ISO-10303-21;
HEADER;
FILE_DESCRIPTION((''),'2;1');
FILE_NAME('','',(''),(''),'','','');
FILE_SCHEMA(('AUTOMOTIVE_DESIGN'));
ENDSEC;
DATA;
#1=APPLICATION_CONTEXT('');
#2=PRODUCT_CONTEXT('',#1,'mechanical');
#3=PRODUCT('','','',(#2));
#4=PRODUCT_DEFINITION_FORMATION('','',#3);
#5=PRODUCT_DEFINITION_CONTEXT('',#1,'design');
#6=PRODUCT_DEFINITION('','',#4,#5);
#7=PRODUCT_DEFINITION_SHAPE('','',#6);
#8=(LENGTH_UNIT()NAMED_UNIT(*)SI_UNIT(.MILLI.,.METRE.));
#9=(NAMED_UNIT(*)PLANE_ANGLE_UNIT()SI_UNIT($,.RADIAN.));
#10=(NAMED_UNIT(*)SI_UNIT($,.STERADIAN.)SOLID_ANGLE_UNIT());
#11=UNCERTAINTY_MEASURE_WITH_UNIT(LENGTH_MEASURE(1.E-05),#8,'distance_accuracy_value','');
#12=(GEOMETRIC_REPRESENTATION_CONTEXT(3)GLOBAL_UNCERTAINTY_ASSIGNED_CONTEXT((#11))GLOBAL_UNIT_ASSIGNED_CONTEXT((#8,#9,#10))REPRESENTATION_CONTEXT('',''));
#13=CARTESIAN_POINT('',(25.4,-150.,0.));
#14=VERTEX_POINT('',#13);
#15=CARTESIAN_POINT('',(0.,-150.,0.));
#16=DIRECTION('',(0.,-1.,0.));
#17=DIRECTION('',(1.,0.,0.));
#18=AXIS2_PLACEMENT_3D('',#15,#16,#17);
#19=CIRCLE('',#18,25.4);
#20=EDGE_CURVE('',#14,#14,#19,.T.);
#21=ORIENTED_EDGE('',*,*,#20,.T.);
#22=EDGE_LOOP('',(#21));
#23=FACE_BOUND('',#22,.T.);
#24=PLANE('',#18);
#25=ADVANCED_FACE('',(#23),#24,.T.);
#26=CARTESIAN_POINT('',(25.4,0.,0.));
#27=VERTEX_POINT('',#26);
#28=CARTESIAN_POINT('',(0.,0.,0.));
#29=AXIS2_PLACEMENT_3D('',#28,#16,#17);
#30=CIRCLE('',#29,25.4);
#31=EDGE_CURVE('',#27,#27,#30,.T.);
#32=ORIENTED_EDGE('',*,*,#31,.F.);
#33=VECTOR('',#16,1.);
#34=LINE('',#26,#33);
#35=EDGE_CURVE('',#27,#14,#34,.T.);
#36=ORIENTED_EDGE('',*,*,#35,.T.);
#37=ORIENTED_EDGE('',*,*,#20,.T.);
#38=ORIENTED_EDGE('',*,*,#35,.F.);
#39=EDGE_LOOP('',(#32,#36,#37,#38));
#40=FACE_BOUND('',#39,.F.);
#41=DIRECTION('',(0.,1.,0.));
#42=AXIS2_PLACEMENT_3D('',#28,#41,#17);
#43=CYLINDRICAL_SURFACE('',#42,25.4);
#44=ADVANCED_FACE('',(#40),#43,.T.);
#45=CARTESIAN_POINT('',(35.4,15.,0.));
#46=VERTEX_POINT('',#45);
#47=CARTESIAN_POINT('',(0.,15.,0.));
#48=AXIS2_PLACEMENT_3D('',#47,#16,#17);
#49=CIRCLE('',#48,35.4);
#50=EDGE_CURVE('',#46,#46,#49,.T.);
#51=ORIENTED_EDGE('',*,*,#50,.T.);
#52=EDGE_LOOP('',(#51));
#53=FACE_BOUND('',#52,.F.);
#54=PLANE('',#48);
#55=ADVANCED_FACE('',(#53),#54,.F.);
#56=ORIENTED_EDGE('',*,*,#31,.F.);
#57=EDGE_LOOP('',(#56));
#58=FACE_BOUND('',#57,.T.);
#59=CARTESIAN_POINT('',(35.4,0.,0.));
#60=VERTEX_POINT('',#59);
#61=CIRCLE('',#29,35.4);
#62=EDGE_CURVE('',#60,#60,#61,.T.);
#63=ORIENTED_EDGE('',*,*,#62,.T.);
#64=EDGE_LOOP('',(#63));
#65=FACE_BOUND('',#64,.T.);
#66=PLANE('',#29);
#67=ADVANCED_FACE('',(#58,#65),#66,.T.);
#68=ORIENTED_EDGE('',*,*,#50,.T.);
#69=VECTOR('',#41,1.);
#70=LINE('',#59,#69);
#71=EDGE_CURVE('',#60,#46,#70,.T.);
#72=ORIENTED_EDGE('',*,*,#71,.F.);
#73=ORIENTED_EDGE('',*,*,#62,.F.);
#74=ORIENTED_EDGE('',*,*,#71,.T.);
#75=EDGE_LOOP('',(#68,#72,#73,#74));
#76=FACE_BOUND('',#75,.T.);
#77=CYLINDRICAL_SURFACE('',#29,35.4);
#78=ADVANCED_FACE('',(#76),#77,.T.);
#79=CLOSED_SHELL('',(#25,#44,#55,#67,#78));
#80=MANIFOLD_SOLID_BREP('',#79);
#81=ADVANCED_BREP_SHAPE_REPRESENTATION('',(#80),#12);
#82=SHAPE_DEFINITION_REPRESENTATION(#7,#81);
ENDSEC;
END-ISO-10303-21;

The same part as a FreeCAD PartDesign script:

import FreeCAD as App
import Part
import Sketcher
Q = App.Units.Quantity

doc = App.newDocument("Part")
body = doc.addObject("PartDesign::Body", "Body")

# Sketch on XZ plane
sketch1 = body.newObject("Sketcher::SketchObject", "Sketch")
sketch1.AttachmentSupport = (doc.getObject("XZ_Plane"), [""])
sketch1.MapMode = "FlatFace"
sketch1.addGeometry(Part.Circle(App.Vector(0, 0, 0), App.Vector(0, 0, 1), 25), False)
sketch1.addConstraint(Sketcher.Constraint("Coincident", 0, 3, -1, 1))
sketch1.addConstraint(Sketcher.Constraint("Diameter", 0, Q("50.8 mm")))
pad1 = body.newObject("PartDesign::Pad", "Pad")
pad1.Profile = sketch1
pad1.Length = 150

# Sketch on XZ plane
sketch2 = body.newObject("Sketcher::SketchObject", "Sketch001")
sketch2.AttachmentSupport = (doc.getObject("XZ_Plane"), [""])
sketch2.MapMode = "FlatFace"
sketch2.addGeometry(Part.Circle(App.Vector(0, 0, 0), App.Vector(0, 0, 1), 35), False)
sketch2.addConstraint(Sketcher.Constraint("Coincident", 0, 3, -1, 1))
sketch2.addConstraint(Sketcher.Constraint("Diameter", 0, Q("70.8 mm")))
pad2 = body.newObject("PartDesign::Pad", "Pad001")
pad2.Profile = sketch2
pad2.Length = 15
pad2.Reversed = True

doc.recompute()
